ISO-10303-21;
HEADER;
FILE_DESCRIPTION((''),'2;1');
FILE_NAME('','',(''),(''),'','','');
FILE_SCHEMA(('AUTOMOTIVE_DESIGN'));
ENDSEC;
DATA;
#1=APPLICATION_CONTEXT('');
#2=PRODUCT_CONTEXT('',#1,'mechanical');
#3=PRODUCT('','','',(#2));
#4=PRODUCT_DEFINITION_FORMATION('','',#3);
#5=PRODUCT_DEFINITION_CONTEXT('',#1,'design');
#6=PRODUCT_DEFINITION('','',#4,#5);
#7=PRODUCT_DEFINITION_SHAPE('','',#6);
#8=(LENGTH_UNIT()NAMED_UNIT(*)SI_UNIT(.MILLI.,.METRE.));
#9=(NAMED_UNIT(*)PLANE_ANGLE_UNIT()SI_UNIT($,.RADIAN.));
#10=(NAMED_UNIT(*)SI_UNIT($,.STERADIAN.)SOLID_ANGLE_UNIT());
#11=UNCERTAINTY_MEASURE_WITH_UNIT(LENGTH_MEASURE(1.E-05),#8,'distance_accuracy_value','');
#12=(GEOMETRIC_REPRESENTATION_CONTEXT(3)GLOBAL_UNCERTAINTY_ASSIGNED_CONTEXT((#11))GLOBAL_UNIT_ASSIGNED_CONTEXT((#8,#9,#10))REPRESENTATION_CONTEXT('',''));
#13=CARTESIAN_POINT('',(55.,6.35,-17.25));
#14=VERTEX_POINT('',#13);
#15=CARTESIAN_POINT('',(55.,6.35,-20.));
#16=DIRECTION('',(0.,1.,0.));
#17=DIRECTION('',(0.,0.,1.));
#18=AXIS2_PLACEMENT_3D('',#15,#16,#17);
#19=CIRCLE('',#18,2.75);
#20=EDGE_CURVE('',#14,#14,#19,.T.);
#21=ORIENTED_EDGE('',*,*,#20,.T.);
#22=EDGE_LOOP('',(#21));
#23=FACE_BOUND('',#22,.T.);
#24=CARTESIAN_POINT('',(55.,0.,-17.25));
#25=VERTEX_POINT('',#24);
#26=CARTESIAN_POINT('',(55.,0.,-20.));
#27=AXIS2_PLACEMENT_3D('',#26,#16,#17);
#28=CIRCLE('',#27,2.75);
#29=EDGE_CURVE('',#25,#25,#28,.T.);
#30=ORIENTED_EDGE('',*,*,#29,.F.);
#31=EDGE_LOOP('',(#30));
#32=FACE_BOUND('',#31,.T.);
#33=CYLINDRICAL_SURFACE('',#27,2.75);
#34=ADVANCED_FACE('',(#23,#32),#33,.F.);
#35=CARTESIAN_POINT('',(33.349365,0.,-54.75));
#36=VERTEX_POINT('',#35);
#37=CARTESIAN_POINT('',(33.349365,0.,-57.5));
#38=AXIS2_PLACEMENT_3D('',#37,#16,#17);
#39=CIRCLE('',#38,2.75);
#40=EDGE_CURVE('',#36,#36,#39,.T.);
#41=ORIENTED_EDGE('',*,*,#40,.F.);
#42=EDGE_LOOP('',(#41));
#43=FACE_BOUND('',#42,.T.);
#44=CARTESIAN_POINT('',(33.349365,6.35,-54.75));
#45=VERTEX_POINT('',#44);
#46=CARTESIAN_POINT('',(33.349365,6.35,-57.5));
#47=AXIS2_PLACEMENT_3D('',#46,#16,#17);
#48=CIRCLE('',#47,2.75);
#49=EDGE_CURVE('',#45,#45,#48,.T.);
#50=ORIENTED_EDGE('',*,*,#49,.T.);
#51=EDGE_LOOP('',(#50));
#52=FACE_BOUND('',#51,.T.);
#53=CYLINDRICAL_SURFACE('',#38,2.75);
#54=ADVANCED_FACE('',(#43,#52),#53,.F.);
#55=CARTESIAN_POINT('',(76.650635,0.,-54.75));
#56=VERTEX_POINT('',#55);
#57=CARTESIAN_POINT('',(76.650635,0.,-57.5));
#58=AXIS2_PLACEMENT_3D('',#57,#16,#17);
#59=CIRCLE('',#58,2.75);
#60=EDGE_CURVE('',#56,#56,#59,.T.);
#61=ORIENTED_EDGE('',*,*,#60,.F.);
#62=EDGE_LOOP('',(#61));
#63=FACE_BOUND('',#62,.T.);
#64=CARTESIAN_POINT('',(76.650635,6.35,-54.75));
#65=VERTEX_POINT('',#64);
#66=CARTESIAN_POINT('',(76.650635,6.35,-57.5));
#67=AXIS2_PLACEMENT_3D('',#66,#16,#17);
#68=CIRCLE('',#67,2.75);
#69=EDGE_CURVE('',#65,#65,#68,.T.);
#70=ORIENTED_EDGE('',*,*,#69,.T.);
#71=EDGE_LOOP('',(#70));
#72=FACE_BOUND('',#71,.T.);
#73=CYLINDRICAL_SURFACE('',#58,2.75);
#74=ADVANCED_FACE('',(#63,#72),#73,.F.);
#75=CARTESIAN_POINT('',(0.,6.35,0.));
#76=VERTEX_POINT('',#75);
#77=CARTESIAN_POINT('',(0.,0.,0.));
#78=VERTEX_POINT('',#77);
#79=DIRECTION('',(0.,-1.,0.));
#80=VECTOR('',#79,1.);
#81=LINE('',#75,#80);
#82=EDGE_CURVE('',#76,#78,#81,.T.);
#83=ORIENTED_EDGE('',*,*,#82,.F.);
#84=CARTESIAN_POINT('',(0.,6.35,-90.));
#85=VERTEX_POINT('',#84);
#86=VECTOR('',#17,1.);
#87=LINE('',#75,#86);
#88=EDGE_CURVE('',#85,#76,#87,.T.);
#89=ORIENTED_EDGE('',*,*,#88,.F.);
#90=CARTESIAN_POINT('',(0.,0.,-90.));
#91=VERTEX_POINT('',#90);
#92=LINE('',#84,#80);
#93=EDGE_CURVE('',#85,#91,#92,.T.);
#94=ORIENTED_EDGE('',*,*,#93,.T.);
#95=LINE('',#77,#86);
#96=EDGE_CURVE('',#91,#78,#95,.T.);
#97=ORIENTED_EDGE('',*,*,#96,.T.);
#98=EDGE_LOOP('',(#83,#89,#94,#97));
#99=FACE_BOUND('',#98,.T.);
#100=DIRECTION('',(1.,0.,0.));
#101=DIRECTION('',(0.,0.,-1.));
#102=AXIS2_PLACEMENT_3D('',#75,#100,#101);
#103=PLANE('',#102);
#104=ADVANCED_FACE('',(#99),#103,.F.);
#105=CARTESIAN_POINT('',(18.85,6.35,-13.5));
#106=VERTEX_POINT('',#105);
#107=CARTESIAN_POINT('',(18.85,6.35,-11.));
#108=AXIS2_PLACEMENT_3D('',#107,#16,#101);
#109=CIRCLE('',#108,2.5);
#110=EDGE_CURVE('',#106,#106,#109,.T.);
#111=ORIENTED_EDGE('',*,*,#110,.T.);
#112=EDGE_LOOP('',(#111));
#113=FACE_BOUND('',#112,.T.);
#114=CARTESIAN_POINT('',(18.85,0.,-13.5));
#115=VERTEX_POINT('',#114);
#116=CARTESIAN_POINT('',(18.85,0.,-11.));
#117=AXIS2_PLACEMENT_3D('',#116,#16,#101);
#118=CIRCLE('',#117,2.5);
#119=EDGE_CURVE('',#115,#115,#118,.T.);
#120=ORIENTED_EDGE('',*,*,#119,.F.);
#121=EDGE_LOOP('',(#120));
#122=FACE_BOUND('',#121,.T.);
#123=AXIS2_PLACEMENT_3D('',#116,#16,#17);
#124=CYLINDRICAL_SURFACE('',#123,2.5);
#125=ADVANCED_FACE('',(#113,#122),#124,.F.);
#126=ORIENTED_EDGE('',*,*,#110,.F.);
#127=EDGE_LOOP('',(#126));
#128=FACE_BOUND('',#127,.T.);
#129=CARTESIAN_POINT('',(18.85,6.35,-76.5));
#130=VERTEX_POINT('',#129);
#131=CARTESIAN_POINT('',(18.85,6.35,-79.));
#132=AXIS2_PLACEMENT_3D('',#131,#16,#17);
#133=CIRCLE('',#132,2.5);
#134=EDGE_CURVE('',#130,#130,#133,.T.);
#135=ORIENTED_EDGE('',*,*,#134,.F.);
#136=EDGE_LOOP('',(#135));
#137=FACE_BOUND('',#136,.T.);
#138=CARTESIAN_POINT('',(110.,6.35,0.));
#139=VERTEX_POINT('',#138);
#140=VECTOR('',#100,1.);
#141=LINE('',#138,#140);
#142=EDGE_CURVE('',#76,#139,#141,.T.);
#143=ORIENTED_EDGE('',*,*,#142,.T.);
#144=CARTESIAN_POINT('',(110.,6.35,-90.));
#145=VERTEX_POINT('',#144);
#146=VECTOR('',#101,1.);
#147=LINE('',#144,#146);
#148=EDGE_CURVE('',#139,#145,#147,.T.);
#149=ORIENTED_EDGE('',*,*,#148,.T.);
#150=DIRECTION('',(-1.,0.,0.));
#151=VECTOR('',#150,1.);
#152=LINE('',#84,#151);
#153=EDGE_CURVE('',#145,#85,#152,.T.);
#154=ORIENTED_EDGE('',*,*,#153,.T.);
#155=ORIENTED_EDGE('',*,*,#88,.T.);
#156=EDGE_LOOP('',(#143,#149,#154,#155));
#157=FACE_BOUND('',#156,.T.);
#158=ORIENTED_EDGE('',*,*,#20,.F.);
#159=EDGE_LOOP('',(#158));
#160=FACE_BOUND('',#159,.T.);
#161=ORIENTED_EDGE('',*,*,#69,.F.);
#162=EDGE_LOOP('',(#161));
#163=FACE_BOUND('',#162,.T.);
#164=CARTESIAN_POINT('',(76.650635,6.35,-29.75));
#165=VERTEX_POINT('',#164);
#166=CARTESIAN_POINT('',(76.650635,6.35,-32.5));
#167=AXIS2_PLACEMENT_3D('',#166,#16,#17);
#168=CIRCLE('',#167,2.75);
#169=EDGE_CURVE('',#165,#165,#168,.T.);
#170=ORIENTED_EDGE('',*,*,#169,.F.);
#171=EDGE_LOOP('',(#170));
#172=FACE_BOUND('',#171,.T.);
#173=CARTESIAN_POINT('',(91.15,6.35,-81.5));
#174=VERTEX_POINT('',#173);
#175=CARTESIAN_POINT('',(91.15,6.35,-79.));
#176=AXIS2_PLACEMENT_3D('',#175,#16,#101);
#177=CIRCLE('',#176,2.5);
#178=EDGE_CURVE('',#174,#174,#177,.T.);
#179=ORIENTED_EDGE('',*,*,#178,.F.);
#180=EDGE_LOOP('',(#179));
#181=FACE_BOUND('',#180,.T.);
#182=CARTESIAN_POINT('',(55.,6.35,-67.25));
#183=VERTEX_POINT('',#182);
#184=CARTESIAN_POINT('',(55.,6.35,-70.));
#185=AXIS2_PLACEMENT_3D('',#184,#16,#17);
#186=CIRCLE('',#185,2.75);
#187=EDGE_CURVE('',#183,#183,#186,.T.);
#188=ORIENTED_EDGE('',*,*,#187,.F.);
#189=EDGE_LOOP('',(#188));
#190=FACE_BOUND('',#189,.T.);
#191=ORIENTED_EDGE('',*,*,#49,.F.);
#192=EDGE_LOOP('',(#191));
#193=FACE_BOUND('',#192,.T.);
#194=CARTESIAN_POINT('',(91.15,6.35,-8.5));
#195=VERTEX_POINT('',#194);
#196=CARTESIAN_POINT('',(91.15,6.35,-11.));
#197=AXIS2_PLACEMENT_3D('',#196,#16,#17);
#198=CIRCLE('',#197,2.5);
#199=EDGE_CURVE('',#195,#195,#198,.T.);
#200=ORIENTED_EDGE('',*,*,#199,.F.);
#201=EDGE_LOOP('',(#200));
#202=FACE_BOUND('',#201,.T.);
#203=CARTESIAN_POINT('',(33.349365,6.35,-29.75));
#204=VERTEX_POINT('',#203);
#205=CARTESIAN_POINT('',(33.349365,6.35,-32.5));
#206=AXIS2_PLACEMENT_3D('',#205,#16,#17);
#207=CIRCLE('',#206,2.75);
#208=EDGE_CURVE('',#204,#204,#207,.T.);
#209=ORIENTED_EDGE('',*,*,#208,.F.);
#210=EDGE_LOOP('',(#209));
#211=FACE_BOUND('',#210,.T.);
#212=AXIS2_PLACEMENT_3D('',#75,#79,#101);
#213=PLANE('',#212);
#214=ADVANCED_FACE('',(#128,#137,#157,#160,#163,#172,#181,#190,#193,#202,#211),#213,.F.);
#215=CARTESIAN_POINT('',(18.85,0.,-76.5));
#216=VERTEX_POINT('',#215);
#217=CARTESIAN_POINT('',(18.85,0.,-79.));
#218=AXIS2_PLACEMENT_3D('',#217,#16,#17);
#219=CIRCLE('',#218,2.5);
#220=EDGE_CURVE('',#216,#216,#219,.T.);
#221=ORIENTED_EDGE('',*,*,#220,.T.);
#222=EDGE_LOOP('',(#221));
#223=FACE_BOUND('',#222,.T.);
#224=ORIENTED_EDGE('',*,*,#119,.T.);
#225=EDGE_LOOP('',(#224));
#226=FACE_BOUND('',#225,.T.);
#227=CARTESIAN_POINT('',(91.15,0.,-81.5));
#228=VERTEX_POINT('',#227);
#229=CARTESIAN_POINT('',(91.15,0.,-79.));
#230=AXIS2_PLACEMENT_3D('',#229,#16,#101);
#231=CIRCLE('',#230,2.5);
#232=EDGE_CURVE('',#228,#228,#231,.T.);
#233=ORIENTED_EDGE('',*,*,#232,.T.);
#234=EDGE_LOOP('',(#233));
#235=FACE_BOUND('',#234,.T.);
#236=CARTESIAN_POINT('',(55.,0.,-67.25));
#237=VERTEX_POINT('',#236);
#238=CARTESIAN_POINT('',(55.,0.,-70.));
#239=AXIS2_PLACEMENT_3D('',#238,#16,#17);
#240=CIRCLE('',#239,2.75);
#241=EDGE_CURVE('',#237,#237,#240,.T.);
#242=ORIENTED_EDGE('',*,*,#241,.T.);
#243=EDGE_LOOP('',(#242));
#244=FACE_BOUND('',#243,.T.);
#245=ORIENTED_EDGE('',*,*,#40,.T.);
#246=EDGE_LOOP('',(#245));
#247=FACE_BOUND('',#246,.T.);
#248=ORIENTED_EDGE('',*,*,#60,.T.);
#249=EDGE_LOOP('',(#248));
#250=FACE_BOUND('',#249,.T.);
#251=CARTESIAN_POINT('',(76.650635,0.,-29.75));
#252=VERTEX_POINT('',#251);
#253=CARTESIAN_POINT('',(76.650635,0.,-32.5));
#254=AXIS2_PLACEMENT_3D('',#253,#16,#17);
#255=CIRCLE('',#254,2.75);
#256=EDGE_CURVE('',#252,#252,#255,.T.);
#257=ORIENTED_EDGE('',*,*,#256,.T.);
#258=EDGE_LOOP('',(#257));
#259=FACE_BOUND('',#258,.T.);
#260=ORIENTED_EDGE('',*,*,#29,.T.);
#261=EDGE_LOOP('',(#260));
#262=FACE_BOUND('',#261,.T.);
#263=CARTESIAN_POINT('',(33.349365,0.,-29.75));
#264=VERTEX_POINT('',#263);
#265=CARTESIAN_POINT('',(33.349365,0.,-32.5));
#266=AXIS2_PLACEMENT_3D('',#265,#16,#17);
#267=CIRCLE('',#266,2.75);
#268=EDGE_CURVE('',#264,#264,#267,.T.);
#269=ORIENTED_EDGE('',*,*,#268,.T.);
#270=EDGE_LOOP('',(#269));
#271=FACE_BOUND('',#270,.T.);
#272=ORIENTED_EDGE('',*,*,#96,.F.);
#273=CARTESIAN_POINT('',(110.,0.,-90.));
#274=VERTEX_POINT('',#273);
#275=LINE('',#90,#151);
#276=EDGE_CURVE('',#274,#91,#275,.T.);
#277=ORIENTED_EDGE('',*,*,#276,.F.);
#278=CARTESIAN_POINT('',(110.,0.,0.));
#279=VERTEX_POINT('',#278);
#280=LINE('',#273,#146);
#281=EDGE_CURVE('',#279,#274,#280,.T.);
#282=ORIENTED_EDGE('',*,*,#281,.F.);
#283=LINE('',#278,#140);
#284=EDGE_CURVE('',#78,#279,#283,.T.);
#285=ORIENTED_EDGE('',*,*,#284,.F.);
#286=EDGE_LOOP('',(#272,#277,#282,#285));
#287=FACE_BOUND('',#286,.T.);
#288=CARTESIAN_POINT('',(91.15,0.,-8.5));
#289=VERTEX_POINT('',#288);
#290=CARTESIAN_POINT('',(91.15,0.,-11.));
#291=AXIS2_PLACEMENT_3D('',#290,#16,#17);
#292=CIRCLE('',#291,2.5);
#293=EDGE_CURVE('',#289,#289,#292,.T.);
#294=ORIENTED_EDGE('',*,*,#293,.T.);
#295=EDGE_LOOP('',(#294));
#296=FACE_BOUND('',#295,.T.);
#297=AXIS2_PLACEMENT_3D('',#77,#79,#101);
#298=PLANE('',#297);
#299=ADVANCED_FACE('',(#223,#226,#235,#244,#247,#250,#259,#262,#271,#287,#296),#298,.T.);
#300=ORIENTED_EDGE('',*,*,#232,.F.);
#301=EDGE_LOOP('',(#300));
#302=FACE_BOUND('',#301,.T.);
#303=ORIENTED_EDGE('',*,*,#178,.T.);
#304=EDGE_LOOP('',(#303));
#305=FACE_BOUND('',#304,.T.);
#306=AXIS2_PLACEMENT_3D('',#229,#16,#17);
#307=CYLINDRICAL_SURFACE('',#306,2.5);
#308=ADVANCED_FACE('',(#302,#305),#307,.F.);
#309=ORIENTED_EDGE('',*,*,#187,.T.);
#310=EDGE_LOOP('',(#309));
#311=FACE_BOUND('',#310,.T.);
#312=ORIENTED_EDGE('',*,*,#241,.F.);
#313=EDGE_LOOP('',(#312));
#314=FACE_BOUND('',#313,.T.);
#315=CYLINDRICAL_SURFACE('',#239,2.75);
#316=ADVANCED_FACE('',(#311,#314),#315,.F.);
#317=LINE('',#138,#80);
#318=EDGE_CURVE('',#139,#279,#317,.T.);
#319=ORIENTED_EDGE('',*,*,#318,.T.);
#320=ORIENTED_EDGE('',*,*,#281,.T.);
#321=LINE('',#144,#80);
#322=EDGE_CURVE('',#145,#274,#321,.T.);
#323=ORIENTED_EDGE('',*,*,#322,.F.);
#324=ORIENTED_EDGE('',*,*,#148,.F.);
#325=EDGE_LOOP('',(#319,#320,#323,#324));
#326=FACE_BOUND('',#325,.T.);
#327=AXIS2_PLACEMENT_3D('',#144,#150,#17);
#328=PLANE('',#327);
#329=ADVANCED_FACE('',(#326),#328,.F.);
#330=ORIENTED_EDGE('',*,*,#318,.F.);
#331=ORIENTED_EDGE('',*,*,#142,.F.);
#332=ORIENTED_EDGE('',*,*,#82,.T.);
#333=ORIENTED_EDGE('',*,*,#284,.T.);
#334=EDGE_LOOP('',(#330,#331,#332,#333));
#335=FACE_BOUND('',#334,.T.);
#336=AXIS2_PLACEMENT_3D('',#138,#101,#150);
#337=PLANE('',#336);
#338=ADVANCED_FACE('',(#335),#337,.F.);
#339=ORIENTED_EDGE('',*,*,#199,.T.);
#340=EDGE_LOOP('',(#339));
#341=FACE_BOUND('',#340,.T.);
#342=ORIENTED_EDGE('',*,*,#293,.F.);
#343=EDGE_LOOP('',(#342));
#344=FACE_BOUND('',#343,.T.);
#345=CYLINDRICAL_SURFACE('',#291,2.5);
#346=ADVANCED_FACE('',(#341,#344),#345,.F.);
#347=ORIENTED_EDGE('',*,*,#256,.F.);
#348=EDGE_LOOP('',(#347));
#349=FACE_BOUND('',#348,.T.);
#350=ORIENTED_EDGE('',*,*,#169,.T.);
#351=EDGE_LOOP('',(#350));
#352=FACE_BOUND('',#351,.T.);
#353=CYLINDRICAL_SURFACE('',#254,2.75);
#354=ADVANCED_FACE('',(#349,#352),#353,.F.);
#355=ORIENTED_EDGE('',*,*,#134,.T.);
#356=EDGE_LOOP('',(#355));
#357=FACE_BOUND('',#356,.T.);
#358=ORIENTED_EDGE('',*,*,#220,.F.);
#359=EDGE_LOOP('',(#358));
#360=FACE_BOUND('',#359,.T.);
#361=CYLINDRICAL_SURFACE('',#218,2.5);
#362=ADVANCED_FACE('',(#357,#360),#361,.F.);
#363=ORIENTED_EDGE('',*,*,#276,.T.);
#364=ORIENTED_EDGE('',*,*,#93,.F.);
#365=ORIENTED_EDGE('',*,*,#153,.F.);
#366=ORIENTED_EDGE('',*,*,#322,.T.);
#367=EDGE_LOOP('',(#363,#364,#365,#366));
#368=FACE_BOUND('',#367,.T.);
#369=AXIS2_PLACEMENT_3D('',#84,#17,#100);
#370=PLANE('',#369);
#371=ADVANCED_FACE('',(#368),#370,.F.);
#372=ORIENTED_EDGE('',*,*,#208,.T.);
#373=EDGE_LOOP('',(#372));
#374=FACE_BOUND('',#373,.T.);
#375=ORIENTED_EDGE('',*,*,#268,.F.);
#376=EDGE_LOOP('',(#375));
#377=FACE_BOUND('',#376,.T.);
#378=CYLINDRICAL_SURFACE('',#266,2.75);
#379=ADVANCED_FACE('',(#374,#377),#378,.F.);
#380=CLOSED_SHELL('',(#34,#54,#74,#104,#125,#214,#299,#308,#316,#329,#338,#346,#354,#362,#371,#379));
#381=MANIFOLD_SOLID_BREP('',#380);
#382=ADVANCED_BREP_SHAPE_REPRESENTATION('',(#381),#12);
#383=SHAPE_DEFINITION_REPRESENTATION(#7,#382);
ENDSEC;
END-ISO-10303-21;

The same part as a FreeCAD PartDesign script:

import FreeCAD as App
import Part
import Sketcher
from FreeCAD import Vector
Q = App.Units.Quantity

doc = App.newDocument("Part")
params = doc.addObject("Spreadsheet::Sheet", "Params")
for row, (alias, value) in enumerate([
    ("sketch1_width", "110 mm"),
    ("sketch1_height", "90 mm"),
    ("pad1_length", "6.35 mm"),
    ("sketch2_diameter", "5 mm"),
    ("sketch3_diameter", "5.5 mm"),
], start=1):
    params.set(f"A{row}", alias)
    params.set(f"B{row}", "=" + value)
    params.setAlias(f"B{row}", alias)

body = doc.addObject("PartDesign::Body", "Body")

# Sketch on XZ plane
sketch1 = body.newObject("Sketcher::SketchObject", "Sketch")
sketch1.AttachmentSupport = (doc.getObject("XZ_Plane"), [""])
sketch1.MapMode = "FlatFace"
sketch1.addGeometry([
    Part.LineSegment(Vector(0, -90, 0), Vector(0, 0, 0)),
    Part.LineSegment(Vector(0, 0, 0), Vector(110, 0, 0)),
    Part.LineSegment(Vector(110, 0, 0), Vector(110, -90, 0)),
    Part.LineSegment(Vector(110, -90, 0), Vector(0, -90, 0)),
], False)
sketch1.addConstraint([
    Sketcher.Constraint("Coincident", 0, 2, 1, 1),
    Sketcher.Constraint("Coincident", 1, 2, 2, 1),
    Sketcher.Constraint("Coincident", 2, 2, 3, 1),
    Sketcher.Constraint("Coincident", 3, 2, 0, 1),
    Sketcher.Constraint("Vertical", 0),
    Sketcher.Constraint("Horizontal", 1),
    Sketcher.Constraint("Vertical", 2),
    Sketcher.Constraint("Horizontal", 3),
    Sketcher.Constraint("Coincident", 0, 2, -1, 1),
    Sketcher.Constraint("DistanceX", 1, 1, 1, 2, Q("110 mm")),
    Sketcher.Constraint("DistanceY", 0, 1, 0, 2, Q("90 mm")),
])
sketch1.setExpression("Constraints[9]", "Params.sketch1_width")
sketch1.setExpression("Constraints[10]", "Params.sketch1_height")
pad1 = body.newObject("PartDesign::Pad", "Pad")
pad1.Profile = sketch1
pad1.setExpression("Length", "Params.pad1_length")
pad1.Reversed = True

# Sketch on XZ plane
sketch2 = body.newObject("Sketcher::SketchObject", "Sketch001")
sketch2.AttachmentSupport = (doc.getObject("XZ_Plane"), [""])
sketch2.MapMode = "FlatFace"
sketch2.AttachmentOffset = App.Placement(Vector(0, 0, -6.35), App.Rotation())
sketch2.addGeometry([
    Part.Circle(Vector(18.85, -79, 0), Vector(0, 0, 1), 2.5),
    Part.Circle(Vector(18.85, -11, 0), Vector(0, 0, 1), 2.5),
    Part.Circle(Vector(91.15, -11, 0), Vector(0, 0, 1), 2.5),
    Part.Circle(Vector(91.15, -79, 0), Vector(0, 0, 1), 2.5),
], False)
sketch2.addConstraint([
    Sketcher.Constraint("Equal", 0, 1),
    Sketcher.Constraint("Equal", 1, 2),
    Sketcher.Constraint("Equal", 2, 3),
    Sketcher.Constraint("Horizontal", 1, 3, 2, 3),
    Sketcher.Constraint("Horizontal", 0, 3, 3, 3),
    Sketcher.Constraint("Vertical", 0, 3, 1, 3),
    Sketcher.Constraint("Vertical", 2, 3, 3, 3),
    Sketcher.Constraint("Diameter", 0, Q("5 mm")),
    Sketcher.Constraint("DistanceY", 0, 3, -1, 1, Q("79 mm")),
    Sketcher.Constraint("DistanceY", 1, 3, -1, 1, Q("11 mm")),
    Sketcher.Constraint("DistanceX", 1, 3, 2, 3, Q("72.3 mm")),
    Sketcher.Constraint("DistanceX", -1, 1, 0, 3, Q("18.85 mm")),
])
sketch2.setExpression("Constraints[7]", "Params.sketch2_diameter")
pocket1 = body.newObject("PartDesign::Pocket", "Pocket")
pocket1.Profile = sketch2
pocket1.Type = "ThroughAll"
pocket1.Reversed = True

# Sketch on XZ plane
sketch3 = body.newObject("Sketcher::SketchObject", "Sketch002")
sketch3.AttachmentSupport = (doc.getObject("XZ_Plane"), [""])
sketch3.MapMode = "FlatFace"
sketch3.AttachmentOffset = App.Placement(Vector(0, 0, -6.35), App.Rotation())
sketch3.addGeometry([
    Part.Circle(Vector(55, -70, 0), Vector(0, 0, 1), 2.75),  # 0
    Part.Circle(Vector(76.650635, -57.5, 0), Vector(0, 0, 1), 2.75),  # 1
    Part.Circle(Vector(76.650635, -32.5, 0), Vector(0, 0, 1), 2.75),  # 2
    Part.Circle(Vector(55, -20, 0), Vector(0, 0, 1), 2.75),  # 3
    Part.Circle(Vector(33.349365, -32.5, 0), Vector(0, 0, 1), 2.75),  # 4
    Part.Circle(Vector(33.349365, -57.5, 0), Vector(0, 0, 1), 2.75),  # 5
], False)
sketch3.addConstraint([
    Sketcher.Constraint("Equal", 0, 1),
    Sketcher.Constraint("Equal", 1, 2),
    Sketcher.Constraint("Equal", 2, 3),
    Sketcher.Constraint("Equal", 3, 4),
    Sketcher.Constraint("Equal", 4, 5),
    Sketcher.Constraint("Horizontal", 2, 3, 4, 3),
    Sketcher.Constraint("Horizontal", 1, 3, 5, 3),
    Sketcher.Constraint("Vertical", 1, 3, 2, 3),
    Sketcher.Constraint("Vertical", 0, 3, 3, 3),
    Sketcher.Constraint("Vertical", 4, 3, 5, 3),
    Sketcher.Constraint("Diameter", 0, Q("5.5 mm")),
    Sketcher.Constraint("DistanceX", -1, 1, 0, 3, Q("55 mm")),
    Sketcher.Constraint("DistanceY", 0, 3, -1, 1, Q("70 mm")),
    Sketcher.Constraint("DistanceY", 3, 3, -1, 1, Q("20 mm")),
    Sketcher.Constraint("DistanceY", 1, 3, 2, 3, Q("25 mm")),
    Sketcher.Constraint("DistanceY", 1, 3, -1, 1, Q("57.5 mm")),
    Sketcher.Constraint("DistanceX", 4, 3, 2, 3, Q("43.30127 mm")),
    Sketcher.Constraint("DistanceX", -1, 1, 1, 3, Q("76.650635 mm")),
])
sketch3.setExpression("Constraints[10]", "Params.sketch3_diameter")
pocket2 = body.newObject("PartDesign::Pocket", "Pocket001")
pocket2.Profile = sketch3
pocket2.Type = "ThroughAll"
pocket2.Reversed = True

doc.recompute()
